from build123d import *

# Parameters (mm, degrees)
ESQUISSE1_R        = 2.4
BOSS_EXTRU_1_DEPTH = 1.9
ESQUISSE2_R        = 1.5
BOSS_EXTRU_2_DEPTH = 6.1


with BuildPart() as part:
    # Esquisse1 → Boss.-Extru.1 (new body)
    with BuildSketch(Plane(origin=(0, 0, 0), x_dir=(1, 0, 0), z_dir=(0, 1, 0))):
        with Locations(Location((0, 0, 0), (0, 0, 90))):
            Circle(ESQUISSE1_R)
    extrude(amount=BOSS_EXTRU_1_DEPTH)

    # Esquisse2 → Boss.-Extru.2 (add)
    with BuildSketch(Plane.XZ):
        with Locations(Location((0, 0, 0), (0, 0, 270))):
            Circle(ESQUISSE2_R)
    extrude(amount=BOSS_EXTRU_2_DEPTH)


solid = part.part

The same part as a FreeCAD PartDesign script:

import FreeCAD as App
import Part
import Sketcher
Q = App.Units.Quantity

doc = App.newDocument("Part")
params = doc.addObject("Spreadsheet::Sheet", "Params")
for row, (alias, value) in enumerate([
    ("sketch1_diameter", "4.8 mm"),
    ("pad1_length", "1.9 mm"),
    ("sketch2_diameter", "3 mm"),
    ("pad2_length", "6.1 mm"),
], start=1):
    params.set(f"A{row}", alias)
    params.set(f"B{row}", "=" + value)
    params.setAlias(f"B{row}", alias)

body = doc.addObject("PartDesign::Body", "Body")

sketch1 = body.newObject("Sketcher::SketchObject", "Sketch")
sketch1.AttachmentSupport = (doc.getObject("XZ_Plane"), [""])
sketch1.MapMode = "FlatFace"
sketch1.addGeometry(Part.Circle(App.Vector(0, 0, 0), App.Vector(0, 0, 1), 2.4), False)
sketch1.addConstraint(Sketcher.Constraint("Coincident", 0, 3, -1, 1))
sketch1.addConstraint(Sketcher.Constraint("Diameter", 0, Q("4.8 mm")))
sketch1.setExpression("Constraints[1]", "Params.sketch1_diameter")
pad1 = body.newObject("PartDesign::Pad", "Pad")
pad1.Profile = sketch1
pad1.setExpression("Length", "Params.pad1_length")
pad1.Reversed = True

sketch2 = body.newObject("Sketcher::SketchObject", "Sketch001")
sketch2.AttachmentSupport = (doc.getObject("XZ_Plane"), [""])
sketch2.MapMode = "FlatFace"
sketch2.addGeometry(Part.Circle(App.Vector(0, 0, 0), App.Vector(0, 0, 1), 1.5), False)
sketch2.addConstraint(Sketcher.Constraint("Coincident", 0, 3, -1, 1))
sketch2.addConstraint(Sketcher.Constraint("Diameter", 0, Q("3 mm")))
sketch2.setExpression("Constraints[1]", "Params.sketch2_diameter")
pad2 = body.newObject("PartDesign::Pad", "Pad001")
pad2.Profile = sketch2
pad2.setExpression("Length", "Params.pad2_length")

doc.recompute()
